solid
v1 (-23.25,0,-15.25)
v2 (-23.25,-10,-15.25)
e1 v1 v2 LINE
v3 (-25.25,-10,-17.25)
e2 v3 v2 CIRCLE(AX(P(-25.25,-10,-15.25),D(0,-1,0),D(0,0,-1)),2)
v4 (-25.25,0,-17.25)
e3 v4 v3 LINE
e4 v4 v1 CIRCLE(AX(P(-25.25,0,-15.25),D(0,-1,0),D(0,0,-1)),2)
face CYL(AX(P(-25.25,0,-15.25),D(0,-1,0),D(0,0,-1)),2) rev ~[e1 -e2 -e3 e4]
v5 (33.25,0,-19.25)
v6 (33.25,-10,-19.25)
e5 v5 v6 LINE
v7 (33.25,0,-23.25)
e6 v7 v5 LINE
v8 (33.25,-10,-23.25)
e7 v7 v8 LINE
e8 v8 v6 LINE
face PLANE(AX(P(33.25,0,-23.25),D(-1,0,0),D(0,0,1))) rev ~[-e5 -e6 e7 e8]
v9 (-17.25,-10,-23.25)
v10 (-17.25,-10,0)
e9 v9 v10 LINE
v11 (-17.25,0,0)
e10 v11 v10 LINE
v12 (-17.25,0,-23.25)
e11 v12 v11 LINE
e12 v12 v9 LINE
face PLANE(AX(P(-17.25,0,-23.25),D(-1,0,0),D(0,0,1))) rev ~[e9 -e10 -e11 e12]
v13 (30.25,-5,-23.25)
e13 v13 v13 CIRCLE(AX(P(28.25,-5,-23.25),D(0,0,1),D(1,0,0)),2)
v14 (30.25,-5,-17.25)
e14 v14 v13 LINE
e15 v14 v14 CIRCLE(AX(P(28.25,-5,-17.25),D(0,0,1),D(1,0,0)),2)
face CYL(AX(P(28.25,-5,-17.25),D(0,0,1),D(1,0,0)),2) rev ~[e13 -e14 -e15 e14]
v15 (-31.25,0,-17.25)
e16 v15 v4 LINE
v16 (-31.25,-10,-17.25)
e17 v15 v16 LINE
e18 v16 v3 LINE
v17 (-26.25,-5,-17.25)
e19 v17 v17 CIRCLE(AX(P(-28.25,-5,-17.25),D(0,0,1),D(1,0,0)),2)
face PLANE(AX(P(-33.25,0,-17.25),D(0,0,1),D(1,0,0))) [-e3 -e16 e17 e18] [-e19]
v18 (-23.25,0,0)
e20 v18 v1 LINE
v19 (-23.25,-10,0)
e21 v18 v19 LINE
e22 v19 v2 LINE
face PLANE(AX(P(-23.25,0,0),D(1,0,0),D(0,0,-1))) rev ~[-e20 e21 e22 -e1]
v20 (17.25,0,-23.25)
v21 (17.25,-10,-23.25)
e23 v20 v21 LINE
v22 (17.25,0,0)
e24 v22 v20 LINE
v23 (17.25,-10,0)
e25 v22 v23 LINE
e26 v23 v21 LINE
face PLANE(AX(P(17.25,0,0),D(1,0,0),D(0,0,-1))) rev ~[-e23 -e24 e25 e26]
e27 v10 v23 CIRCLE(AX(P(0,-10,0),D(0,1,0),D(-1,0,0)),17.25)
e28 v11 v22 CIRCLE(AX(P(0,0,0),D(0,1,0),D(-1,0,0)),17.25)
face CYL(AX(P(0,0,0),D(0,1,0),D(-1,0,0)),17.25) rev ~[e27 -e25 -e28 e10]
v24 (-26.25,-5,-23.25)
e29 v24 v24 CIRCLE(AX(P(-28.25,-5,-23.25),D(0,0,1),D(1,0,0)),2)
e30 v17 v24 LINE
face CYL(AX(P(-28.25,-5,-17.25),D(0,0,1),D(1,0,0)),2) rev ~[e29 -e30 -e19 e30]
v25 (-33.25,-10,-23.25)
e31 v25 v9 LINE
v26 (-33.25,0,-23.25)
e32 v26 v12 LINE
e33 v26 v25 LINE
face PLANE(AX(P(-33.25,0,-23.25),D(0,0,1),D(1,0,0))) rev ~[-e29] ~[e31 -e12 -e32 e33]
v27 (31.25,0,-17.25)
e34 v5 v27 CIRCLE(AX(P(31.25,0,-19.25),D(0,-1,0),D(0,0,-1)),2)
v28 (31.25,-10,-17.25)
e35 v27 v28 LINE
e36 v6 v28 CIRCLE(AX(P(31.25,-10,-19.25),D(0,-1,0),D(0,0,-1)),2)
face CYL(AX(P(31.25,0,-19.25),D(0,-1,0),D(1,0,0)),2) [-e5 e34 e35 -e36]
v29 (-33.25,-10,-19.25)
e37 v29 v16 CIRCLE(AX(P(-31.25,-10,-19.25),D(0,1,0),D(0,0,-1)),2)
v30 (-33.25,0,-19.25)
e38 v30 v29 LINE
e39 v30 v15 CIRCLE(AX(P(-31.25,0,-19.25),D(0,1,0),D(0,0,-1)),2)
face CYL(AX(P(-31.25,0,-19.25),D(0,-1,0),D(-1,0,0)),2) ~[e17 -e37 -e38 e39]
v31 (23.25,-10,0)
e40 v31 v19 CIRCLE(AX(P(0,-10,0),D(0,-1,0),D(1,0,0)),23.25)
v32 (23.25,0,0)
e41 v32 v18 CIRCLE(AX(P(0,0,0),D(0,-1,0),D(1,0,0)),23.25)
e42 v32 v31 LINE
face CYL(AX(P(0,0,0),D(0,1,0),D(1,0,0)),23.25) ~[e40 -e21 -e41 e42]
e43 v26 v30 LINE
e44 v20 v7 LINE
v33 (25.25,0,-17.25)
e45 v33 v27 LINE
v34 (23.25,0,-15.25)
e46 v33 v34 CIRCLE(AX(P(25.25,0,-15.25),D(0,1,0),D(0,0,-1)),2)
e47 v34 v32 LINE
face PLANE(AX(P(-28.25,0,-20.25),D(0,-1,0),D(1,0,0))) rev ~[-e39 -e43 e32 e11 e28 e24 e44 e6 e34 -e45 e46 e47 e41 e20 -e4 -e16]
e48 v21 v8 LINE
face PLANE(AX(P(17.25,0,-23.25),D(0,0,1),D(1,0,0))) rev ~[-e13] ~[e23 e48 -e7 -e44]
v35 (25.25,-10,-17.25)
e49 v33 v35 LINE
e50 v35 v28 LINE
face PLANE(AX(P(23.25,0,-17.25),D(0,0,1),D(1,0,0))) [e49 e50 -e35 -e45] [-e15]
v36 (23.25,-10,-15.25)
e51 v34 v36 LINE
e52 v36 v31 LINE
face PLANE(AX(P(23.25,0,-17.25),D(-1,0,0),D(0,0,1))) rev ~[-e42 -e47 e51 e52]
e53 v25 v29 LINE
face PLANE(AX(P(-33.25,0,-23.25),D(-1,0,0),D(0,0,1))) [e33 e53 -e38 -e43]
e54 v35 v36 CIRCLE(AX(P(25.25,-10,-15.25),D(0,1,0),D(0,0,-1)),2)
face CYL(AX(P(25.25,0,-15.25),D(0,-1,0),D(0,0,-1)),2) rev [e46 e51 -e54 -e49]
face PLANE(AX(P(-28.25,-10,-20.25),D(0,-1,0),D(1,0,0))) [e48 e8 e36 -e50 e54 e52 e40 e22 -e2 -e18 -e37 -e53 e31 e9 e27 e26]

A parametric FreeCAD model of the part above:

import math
import FreeCAD as App
import Part
import Sketcher
Q = App.Units.Quantity


def edges_at(feature, points):
    """Names of the edges that pass closest to the given points."""
    edges = feature.Shape.Edges
    near = lambda p: min(range(len(edges)), key=lambda i: edges[i].distToShape(Part.Vertex(*p))[0])
    return sorted({f"Edge{near(p) + 1}" for p in points})

doc = App.newDocument("Part")
params = doc.addObject("Spreadsheet::Sheet", "Params")
for row, (alias, value) in enumerate([
    ("sketch1_width", "16 mm"),
    ("sketch1_width2", "10 mm"),
    ("sketch1_height", "6 mm"),
    ("sketch1_radius", "17.25 mm"),
    ("sketch1_height2", "23.25 mm"),
    ("pad1_length", "10 mm"),
    ("sketch2_diameter", "4 mm"),
    ("fillet_radius", "2 mm"),
], start=1):
    params.set(f"A{row}", alias)
    params.set(f"B{row}", "=" + value)
    params.setAlias(f"B{row}", alias)

body = doc.addObject("PartDesign::Body", "Body")

# Sketch on XZ plane
sketch1 = body.newObject("Sketcher::SketchObject", "Sketch")
sketch1.AttachmentSupport = (doc.getObject("XZ_Plane"), [""])
sketch1.MapMode = "FlatFace"
sketch1.addGeometry(Part.LineSegment(App.Vector(-33, -17, 0), App.Vector(-33, -23, 0)), False)
sketch1.addGeometry(Part.LineSegment(App.Vector(-33, -23, 0), App.Vector(-17, -23, 0)), False)
sketch1.addGeometry(Part.LineSegment(App.Vector(-17, -23, 0), App.Vector(-17, 0, 0)), False)
sketch1.addGeometry(Part.ArcOfCircle(Part.Circle(App.Vector(0, 0, 0), App.Vector(0, 0, 1), 17), math.radians(0), math.radians(180)), False)
sketch1.addGeometry(Part.LineSegment(App.Vector(17, 0, 0), App.Vector(17, -23, 0)), False)
sketch1.addGeometry(Part.LineSegment(App.Vector(17, -23, 0), App.Vector(33, -23, 0)), False)
sketch1.addGeometry(Part.LineSegment(App.Vector(33, -23, 0), App.Vector(33, -17, 0)), False)
sketch1.addGeometry(Part.LineSegment(App.Vector(33, -17, 0), App.Vector(23, -17, 0)), False)
sketch1.addGeometry(Part.LineSegment(App.Vector(23, -17, 0), App.Vector(23, 0, 0)), False)
sketch1.addGeometry(Part.ArcOfCircle(Part.Circle(App.Vector(0, 0, 0), App.Vector(0, 0, 1), 23), math.radians(0), math.radians(180)), False)
sketch1.addGeometry(Part.LineSegment(App.Vector(-23, 0, 0), App.Vector(-23, -17, 0)), False)
sketch1.addGeometry(Part.LineSegment(App.Vector(-23, -17, 0), App.Vector(-33, -17, 0)), False)
sketch1.addConstraint(Sketcher.Constraint("Coincident", 0, 2, 1, 1))
sketch1.addConstraint(Sketcher.Constraint("Coincident", 1, 2, 2, 1))
sketch1.addConstraint(Sketcher.Constraint("Tangent", 2, 2, 3, 2))
sketch1.addConstraint(Sketcher.Constraint("Tangent", 3, 1, 4, 1))
sketch1.addConstraint(Sketcher.Constraint("Coincident", 4, 2, 5, 1))
sketch1.addConstraint(Sketcher.Constraint("Coincident", 5, 2, 6, 1))
sketch1.addConstraint(Sketcher.Constraint("Coincident", 6, 2, 7, 1))
sketch1.addConstraint(Sketcher.Constraint("Coincident", 7, 2, 8, 1))
sketch1.addConstraint(Sketcher.Constraint("Tangent", 8, 2, 9, 1))
sketch1.addConstraint(Sketcher.Constraint("Tangent", 9, 2, 10, 1))
sketch1.addConstraint(Sketcher.Constraint("Coincident", 10, 2, 11, 1))
sketch1.addConstraint(Sketcher.Constraint("Coincident", 11, 2, 0, 1))
sketch1.addConstraint(Sketcher.Constraint("Vertical", 0))
sketch1.addConstraint(Sketcher.Constraint("Horizontal", 1))
sketch1.addConstraint(Sketcher.Constraint("Vertical", 2))
sketch1.addConstraint(Sketcher.Constraint("Vertical", 4))
sketch1.addConstraint(Sketcher.Constraint("Horizontal", 5))
sketch1.addConstraint(Sketcher.Constraint("Vertical", 6))
sketch1.addConstraint(Sketcher.Constraint("Horizontal", 7))
sketch1.addConstraint(Sketcher.Constraint("Vertical", 8))
sketch1.addConstraint(Sketcher.Constraint("Vertical", 10))
sketch1.addConstraint(Sketcher.Constraint("Horizontal", 11))
sketch1.addConstraint(Sketcher.Constraint("Coincident", 3, 3, -1, 1))
sketch1.addConstraint(Sketcher.Constraint("Coincident", 9, 3, -1, 1))
sketch1.addConstraint(Sketcher.Constraint("Symmetric", 0, 2, 5, 2, -2))
sketch1.addConstraint(Sketcher.Constraint("Horizontal", 7, 2, 10, 2))
sketch1.addConstraint(Sketcher.Constraint("DistanceX", 1, 1, 1, 2, Q("16 mm")))
sketch1.addConstraint(Sketcher.Constraint("DistanceX", 7, 2, 7, 1, Q("10 mm")))
sketch1.addConstraint(Sketcher.Constraint("DistanceY", 0, 2, 0, 1, Q("6 mm")))
sketch1.addConstraint(Sketcher.Constraint("Radius", 3, Q("17.25 mm")))
sketch1.addConstraint(Sketcher.Constraint("DistanceY", 2, 1, 2, 2, Q("23.25 mm")))
sketch1.setExpression("Constraints[26]", "Params.sketch1_width")
sketch1.setExpression("Constraints[27]", "Params.sketch1_width2")
sketch1.setExpression("Constraints[28]", "Params.sketch1_height")
sketch1.setExpression("Constraints[29]", "Params.sketch1_radius")
sketch1.setExpression("Constraints[30]", "Params.sketch1_height2")
pad1 = body.newObject("PartDesign::Pad", "Pad")
pad1.Profile = sketch1
pad1.setExpression("Length", "Params.pad1_length")

# Sketch on XY plane
sketch2 = body.newObject("Sketcher::SketchObject", "Sketch001")
sketch2.AttachmentSupport = (doc.getObject("XY_Plane"), [""])
sketch2.MapMode = "FlatFace"
sketch2.AttachmentOffset = App.Placement(App.Vector(0, 0, -17.25), App.Rotation())
sketch2.addGeometry(Part.Circle(App.Vector(-28.2, -5, 0), App.Vector(0, 0, 1), 2), False)
sketch2.addGeometry(Part.Circle(App.Vector(28.2, -5, 0), App.Vector(0, 0, 1), 2), False)
sketch2.addConstraint(Sketcher.Constraint("Equal", 0, 1))
sketch2.addConstraint(Sketcher.Constraint("Symmetric", 0, 3, 1, 3, -2))
sketch2.addConstraint(Sketcher.Constraint("Diameter", 0, Q("4 mm")))
sketch2.addConstraint(Sketcher.Constraint("DistanceY", 0, 3, -1, 1, Q("5 mm")))
sketch2.addConstraint(Sketcher.Constraint("DistanceX", 0, 3, 1, 3, Q("56.5 mm")))
sketch2.setExpression("Constraints[2]", "Params.sketch2_diameter")
pocket1 = body.newObject("PartDesign::Pocket", "Pocket")
pocket1.Profile = sketch2
pocket1.Type = "ThroughAll"
doc.recompute()

fillet = body.newObject("PartDesign::Fillet", "Fillet")
fillet.Base = (pocket1, edges_at(pocket1, [
    (-23.25, -5, -17.25),
    (23.25, -5, -17.25),
    (33.25, -5, -17.25),
    (-33.25, -5, -17.25),
]))
fillet.setExpression("Radius", "Params.fillet_radius")

doc.recompute()
